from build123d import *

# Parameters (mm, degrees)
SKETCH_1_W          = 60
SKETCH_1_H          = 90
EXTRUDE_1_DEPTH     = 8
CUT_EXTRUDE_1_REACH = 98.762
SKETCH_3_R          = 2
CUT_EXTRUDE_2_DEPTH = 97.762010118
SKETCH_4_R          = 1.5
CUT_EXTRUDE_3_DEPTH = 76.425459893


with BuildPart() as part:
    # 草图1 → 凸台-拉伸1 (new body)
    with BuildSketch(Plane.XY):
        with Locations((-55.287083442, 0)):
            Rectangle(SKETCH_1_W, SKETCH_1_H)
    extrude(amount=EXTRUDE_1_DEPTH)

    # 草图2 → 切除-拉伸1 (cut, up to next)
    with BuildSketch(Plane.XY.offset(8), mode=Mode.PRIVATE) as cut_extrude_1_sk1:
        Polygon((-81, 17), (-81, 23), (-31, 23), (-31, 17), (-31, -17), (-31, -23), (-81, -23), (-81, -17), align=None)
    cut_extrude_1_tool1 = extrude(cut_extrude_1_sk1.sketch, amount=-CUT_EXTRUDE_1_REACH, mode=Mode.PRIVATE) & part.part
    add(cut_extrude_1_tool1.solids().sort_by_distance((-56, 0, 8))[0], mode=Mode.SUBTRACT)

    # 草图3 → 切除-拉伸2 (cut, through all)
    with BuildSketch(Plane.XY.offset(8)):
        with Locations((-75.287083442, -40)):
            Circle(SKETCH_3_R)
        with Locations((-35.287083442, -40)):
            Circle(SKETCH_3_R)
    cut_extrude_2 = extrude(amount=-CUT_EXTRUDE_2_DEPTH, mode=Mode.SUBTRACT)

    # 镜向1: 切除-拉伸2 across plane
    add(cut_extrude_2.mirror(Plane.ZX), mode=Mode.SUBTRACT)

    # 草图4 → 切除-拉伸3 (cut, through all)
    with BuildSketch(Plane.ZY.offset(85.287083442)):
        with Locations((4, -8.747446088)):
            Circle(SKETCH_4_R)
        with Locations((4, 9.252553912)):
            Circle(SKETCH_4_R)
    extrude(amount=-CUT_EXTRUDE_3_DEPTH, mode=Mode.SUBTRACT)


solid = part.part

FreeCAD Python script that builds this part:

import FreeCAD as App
import Part
import Sketcher
from FreeCAD import Vector


def add_polygon(sketch, points):
    """Adds a closed chain of lines whose ends are joined by coincident constraints."""
    first, n = sketch.GeometryCount, len(points)
    for a, b in zip(points, points[1:] + points[:1]):
        sketch.addGeometry(Part.LineSegment(App.Vector(*a, 0), App.Vector(*b, 0)), False)
    for i in range(n):
        sketch.addConstraint(Sketcher.Constraint("Coincident", first + i, 2, first + (i + 1) % n, 1))

doc = App.newDocument("Part")
body = doc.addObject("PartDesign::Body", "Body")

sketch1 = body.newObject("Sketcher::SketchObject", "Sketch")
sketch1.AttachmentSupport = (doc.getObject("XY_Plane"), [""])
sketch1.MapMode = "FlatFace"
add_polygon(sketch1, [(-85.287083, 45), (-85.287083, -45), (-25.287083, -45), (-25.287083, 45)])
sketch1.addConstraint([
    Sketcher.Constraint("Vertical", 0),
    Sketcher.Constraint("Horizontal", 1),
    Sketcher.Constraint("Vertical", 2),
    Sketcher.Constraint("Horizontal", 3),
    Sketcher.Constraint("DistanceX", 1, 1, 1, 2, 60.0),
    Sketcher.Constraint("DistanceY", 0, 2, 0, 1, 90.0),
    Sketcher.Constraint("DistanceY", 0, 2, -1, 1, 45.0),
    Sketcher.Constraint("DistanceX", 0, 2, -1, 1, 85.287083),
])
pad1 = body.newObject("PartDesign::Pad", "Pad")
pad1.Profile = sketch1
pad1.Length = 8

sketch2 = body.newObject("Sketcher::SketchObject", "Sketch001")
sketch2.AttachmentSupport = (doc.getObject("XY_Plane"), [""])
sketch2.MapMode = "FlatFace"
sketch2.AttachmentOffset = App.Placement(Vector(0, 0, 8), App.Rotation())
add_polygon(sketch2, [(-81, 23), (-81, -23), (-31, -23), (-31, 23)])
sketch2.addConstraint([
    Sketcher.Constraint("Vertical", 0),
    Sketcher.Constraint("Horizontal", 1),
    Sketcher.Constraint("Vertical", 2),
    Sketcher.Constraint("Horizontal", 3),
    Sketcher.Constraint("DistanceX", 1, 1, 1, 2, 50.0),
    Sketcher.Constraint("DistanceY", 0, 2, 0, 1, 46.0),
    Sketcher.Constraint("DistanceX", 0, 2, -1, 1, 81.0),
    Sketcher.Constraint("DistanceY", 0, 2, -1, 1, 23.0),
])
pocket1 = body.newObject("PartDesign::Pocket", "Pocket")
pocket1.Profile = sketch2
pocket1.Type = "UpToFirst"

sketch3 = body.newObject("Sketcher::SketchObject", "Sketch002")
sketch3.AttachmentSupport = (doc.getObject("XY_Plane"), [""])
sketch3.MapMode = "FlatFace"
sketch3.AttachmentOffset = App.Placement(Vector(0, 0, 8), App.Rotation())
sketch3.addGeometry([
    Part.Circle(Vector(-75.287083, -40, 0), Vector(0, 0, 1), 2),
    Part.Circle(Vector(-35.287083, -40, 0), Vector(0, 0, 1), 2),
], False)
sketch3.addConstraint([
    Sketcher.Constraint("Equal", 0, 1),
    Sketcher.Constraint("Horizontal", 0, 3, 1, 3),
    Sketcher.Constraint("Diameter", 0, 4.0),
    Sketcher.Constraint("DistanceY", 0, 3, -1, 1, 40.0),
    Sketcher.Constraint("DistanceX", 0, 3, 1, 3, 40.0),
    Sketcher.Constraint("DistanceX", 0, 3, -1, 1, 75.287083),
])
pocket2 = body.newObject("PartDesign::Pocket", "Pocket001")
pocket2.Profile = sketch3
pocket2.Type = "ThroughAll"
doc.recompute()

mirrored = body.newObject("PartDesign::Mirrored", "Mirrored")
mirrored.Originals = [pocket2]
mirrored.MirrorPlane = (doc.getObject("XZ_Plane"), [""])
body.Tip = mirrored

sketch4 = body.newObject("Sketcher::SketchObject", "Sketch003")
sketch4.AttachmentSupport = (doc.getObject("YZ_Plane"), [""])
sketch4.MapMode = "FlatFace"
sketch4.AttachmentOffset = App.Placement(Vector(0, 0, -85.287083), App.Rotation())
sketch4.addGeometry([
    Part.Circle(Vector(-8.747446, 4, 0), Vector(0, 0, 1), 1.5),
    Part.Circle(Vector(9.252554, 4, 0), Vector(0, 0, 1), 1.5),
], False)
sketch4.addConstraint([
    Sketcher.Constraint("Equal", 0, 1),
    Sketcher.Constraint("Horizontal", 0, 3, 1, 3),
    Sketcher.Constraint("Diameter", 0, 3.0),
    Sketcher.Constraint("DistanceY", -1, 1, 0, 3, 4.0),
    Sketcher.Constraint("DistanceX", 0, 3, 1, 3, 18.0),
    Sketcher.Constraint("DistanceX", 0, 3, -1, 1, 8.747446),
])
pocket3 = body.newObject("PartDesign::Pocket", "Pocket002")
pocket3.Profile = sketch4
pocket3.Type = "ThroughAll"
pocket3.Reversed = True

doc.recompute()
